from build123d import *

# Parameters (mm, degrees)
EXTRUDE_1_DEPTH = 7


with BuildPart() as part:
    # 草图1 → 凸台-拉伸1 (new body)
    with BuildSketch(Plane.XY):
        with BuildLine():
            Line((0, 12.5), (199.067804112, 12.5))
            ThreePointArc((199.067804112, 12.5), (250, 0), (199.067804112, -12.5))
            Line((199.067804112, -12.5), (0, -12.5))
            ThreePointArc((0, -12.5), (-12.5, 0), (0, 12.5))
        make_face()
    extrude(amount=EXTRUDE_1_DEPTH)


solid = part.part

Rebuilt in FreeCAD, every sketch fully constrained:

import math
import FreeCAD as App
import Part
import Sketcher

V = App.Vector

doc = App.newDocument("Part")
body = doc.addObject("PartDesign::Body", "Body")

sketch1 = body.newObject("Sketcher::SketchObject", "Sketch")
sketch1.AttachmentSupport = (doc.getObject("XY_Plane"), [""])
sketch1.MapMode = "FlatFace"
sketch1.addGeometry(Part.LineSegment(V(199, 12, 0), V(0, 12, 0)), False)
sketch1.addGeometry(Part.ArcOfCircle(Part.Circle(V(0, 0, 0), V(0, 0, 1), 12), math.radians(90), math.radians(270)), False)
sketch1.addGeometry(Part.LineSegment(V(0, -12, 0), V(199, -12, 0)), False)
sketch1.addGeometry(Part.ArcOfCircle(Part.Circle(V(223, 0, 0), V(0, 0, 1), 27), math.radians(-152), math.radians(152)), False)
sketch1.addConstraint(Sketcher.Constraint("Tangent", 0, 2, 1, 1))
sketch1.addConstraint(Sketcher.Constraint("Tangent", 1, 2, 2, 1))
sketch1.addConstraint(Sketcher.Constraint("Coincident", 2, 2, 3, 1))
sketch1.addConstraint(Sketcher.Constraint("Coincident", 3, 2, 0, 1))
sketch1.addConstraint(Sketcher.Constraint("Horizontal", 0))
sketch1.addConstraint(Sketcher.Constraint("Horizontal", 2))
sketch1.addConstraint(Sketcher.Constraint("Coincident", 1, 3, -1, 1))
sketch1.addConstraint(Sketcher.Constraint("PointOnObject", 3, 3, -1))
sketch1.addConstraint(Sketcher.Constraint("Radius", 3, 27.0))
sketch1.addConstraint(Sketcher.Constraint("Radius", 1, 12.5))
sketch1.addConstraint(Sketcher.Constraint("DistanceX", -1, 1, 3, 3, 223.0))
pad1 = body.newObject("PartDesign::Pad", "Pad")
pad1.Profile = sketch1
pad1.Length = 7

doc.recompute()
